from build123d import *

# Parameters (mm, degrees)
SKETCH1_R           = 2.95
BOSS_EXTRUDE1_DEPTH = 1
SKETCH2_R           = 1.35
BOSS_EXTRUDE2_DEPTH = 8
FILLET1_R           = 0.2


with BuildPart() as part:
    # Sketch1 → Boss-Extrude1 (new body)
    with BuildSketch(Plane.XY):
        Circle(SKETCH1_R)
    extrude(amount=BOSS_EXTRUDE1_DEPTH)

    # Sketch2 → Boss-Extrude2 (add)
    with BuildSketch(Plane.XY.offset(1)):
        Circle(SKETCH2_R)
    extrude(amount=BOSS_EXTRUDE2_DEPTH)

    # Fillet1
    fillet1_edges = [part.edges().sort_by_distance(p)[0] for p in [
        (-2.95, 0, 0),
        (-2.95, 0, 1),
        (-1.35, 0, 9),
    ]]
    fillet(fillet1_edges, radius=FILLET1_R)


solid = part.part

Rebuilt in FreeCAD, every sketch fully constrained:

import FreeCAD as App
import Part
import Sketcher
from FreeCAD import Vector
Q = App.Units.Quantity


def edges_at(feature, points):
    """Names of the edges that pass closest to the given points."""
    edges = feature.Shape.Edges
    near = lambda p: min(range(len(edges)), key=lambda i: edges[i].distToShape(Part.Vertex(*p))[0])
    return sorted({f"Edge{near(p) + 1}" for p in points})

doc = App.newDocument("Part")
params = doc.addObject("Spreadsheet::Sheet", "Params")
for row, (alias, value) in enumerate([
    ("sketch1_diameter", "5.9 mm"),
    ("pad1_length", "1 mm"),
    ("sketch2_diameter", "2.7 mm"),
    ("pad2_length", "8 mm"),
    ("fillet_radius", "0.2 mm"),
], start=1):
    params.set(f"A{row}", alias)
    params.set(f"B{row}", "=" + value)
    params.setAlias(f"B{row}", alias)

body = doc.addObject("PartDesign::Body", "Body")

# Sketch on XY plane
sketch1 = body.newObject("Sketcher::SketchObject", "Sketch")
sketch1.AttachmentSupport = (doc.getObject("XY_Plane"), [""])
sketch1.MapMode = "FlatFace"
sketch1.addGeometry(Part.Circle(Vector(0, 0, 0), Vector(0, 0, 1), 2.95), False)
sketch1.addConstraint([
    Sketcher.Constraint("Coincident", 0, 3, -1, 1),
    Sketcher.Constraint("Diameter", 0, Q("5.9 mm")),
])
sketch1.setExpression("Constraints[1]", "Params.sketch1_diameter")
pad1 = body.newObject("PartDesign::Pad", "Pad")
pad1.Profile = sketch1
pad1.setExpression("Length", "Params.pad1_length")

# Sketch on XY plane
sketch2 = body.newObject("Sketcher::SketchObject", "Sketch001")
sketch2.AttachmentSupport = (doc.getObject("XY_Plane"), [""])
sketch2.MapMode = "FlatFace"
sketch2.AttachmentOffset = App.Placement(Vector(0, 0, 1), App.Rotation())
sketch2.addGeometry(Part.Circle(Vector(0, 0, 0), Vector(0, 0, 1), 1.35), False)
sketch2.addConstraint([
    Sketcher.Constraint("Coincident", 0, 3, -1, 1),
    Sketcher.Constraint("Diameter", 0, Q("2.7 mm")),
])
sketch2.setExpression("Constraints[1]", "Params.sketch2_diameter")
pad2 = body.newObject("PartDesign::Pad", "Pad001")
pad2.Profile = sketch2
pad2.setExpression("Length", "Params.pad2_length")
doc.recompute()

fillet = body.newObject("PartDesign::Fillet", "Fillet")
fillet.Base = (pad2, edges_at(pad2, [(-2.95, 0, 0), (-2.95, 0, 1), (-1.35, 0, 9)]))
fillet.setExpression("Radius", "Params.fillet_radius")

doc.recompute()
